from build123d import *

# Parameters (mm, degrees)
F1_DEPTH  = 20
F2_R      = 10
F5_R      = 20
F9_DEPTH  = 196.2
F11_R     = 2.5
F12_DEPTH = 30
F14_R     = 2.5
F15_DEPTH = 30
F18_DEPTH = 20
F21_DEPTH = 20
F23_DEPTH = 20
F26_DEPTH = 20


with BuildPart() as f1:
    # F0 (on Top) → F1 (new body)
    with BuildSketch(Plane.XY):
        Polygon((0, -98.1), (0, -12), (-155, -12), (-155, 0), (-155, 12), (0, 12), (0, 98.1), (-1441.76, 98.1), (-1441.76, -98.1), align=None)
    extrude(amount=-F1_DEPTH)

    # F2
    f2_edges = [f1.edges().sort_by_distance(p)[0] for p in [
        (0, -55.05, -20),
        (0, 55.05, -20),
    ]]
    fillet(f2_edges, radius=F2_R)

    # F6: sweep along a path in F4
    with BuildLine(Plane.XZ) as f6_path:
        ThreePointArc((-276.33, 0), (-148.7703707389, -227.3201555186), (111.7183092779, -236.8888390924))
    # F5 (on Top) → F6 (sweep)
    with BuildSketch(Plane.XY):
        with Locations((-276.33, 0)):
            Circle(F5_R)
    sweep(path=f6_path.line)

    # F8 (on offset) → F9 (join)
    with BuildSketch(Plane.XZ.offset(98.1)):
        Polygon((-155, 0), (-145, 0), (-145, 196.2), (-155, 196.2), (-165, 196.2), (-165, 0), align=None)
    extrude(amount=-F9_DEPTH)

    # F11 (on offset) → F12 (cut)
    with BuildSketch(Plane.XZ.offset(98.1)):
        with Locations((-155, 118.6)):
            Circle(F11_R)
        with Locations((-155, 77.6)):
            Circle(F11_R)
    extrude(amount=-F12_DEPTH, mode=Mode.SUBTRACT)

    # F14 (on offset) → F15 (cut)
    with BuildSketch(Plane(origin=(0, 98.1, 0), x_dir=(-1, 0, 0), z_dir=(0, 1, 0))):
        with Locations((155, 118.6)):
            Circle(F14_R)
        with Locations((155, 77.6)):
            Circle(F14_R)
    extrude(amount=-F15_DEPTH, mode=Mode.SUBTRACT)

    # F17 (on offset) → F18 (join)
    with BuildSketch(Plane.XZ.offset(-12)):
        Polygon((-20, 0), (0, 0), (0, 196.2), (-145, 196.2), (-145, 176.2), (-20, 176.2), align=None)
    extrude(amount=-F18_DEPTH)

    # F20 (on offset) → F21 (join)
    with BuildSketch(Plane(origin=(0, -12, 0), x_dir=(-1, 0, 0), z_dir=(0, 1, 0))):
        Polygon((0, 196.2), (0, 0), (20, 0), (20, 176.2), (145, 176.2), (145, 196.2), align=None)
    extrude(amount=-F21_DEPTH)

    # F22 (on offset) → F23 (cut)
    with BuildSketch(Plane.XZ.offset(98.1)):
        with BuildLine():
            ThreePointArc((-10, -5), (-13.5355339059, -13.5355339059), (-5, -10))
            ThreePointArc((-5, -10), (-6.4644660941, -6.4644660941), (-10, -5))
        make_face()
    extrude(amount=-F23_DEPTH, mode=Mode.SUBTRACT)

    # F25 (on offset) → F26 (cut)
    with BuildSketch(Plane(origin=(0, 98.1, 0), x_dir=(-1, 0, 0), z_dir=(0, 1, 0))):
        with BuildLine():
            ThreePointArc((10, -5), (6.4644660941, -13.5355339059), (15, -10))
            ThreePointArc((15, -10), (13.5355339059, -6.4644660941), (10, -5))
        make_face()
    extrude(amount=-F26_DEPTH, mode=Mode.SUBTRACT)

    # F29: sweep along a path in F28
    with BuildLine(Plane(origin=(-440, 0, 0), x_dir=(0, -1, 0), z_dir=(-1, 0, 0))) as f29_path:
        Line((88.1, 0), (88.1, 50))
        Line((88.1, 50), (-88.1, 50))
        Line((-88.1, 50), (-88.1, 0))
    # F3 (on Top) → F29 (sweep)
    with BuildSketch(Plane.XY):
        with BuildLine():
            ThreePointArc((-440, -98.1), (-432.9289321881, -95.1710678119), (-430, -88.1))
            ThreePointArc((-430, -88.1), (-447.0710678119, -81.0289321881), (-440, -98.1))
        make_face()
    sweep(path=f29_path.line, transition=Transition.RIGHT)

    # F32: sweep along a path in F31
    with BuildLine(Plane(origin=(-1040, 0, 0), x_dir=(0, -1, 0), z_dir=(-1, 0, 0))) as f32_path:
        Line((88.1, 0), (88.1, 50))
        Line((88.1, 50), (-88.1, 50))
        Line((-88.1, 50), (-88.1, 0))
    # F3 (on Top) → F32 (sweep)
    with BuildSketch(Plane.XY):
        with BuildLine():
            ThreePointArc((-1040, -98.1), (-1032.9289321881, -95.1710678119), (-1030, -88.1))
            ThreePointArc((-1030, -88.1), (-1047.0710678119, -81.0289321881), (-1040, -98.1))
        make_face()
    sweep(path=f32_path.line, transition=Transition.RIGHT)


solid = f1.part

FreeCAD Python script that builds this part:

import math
import FreeCAD as App
import Part
import Sketcher


def edges_at(feature, points):
    """Names of the edges that pass closest to the given points."""
    edges = feature.Shape.Edges
    near = lambda p: min(range(len(edges)), key=lambda i: edges[i].distToShape(Part.Vertex(*p))[0])
    return sorted({f"Edge{near(p) + 1}" for p in points})


def add_polygon(sketch, points):
    """Adds a closed chain of lines whose ends are joined by coincident constraints."""
    first, n = sketch.GeometryCount, len(points)
    for a, b in zip(points, points[1:] + points[:1]):
        sketch.addGeometry(Part.LineSegment(App.Vector(*a, 0), App.Vector(*b, 0)), False)
    for i in range(n):
        sketch.addConstraint(Sketcher.Constraint("Coincident", first + i, 2, first + (i + 1) % n, 1))

doc = App.newDocument("Part")
params = doc.addObject("Spreadsheet::Sheet", "Params")
for row, (alias, value) in enumerate([
    ("sketch1_width", "155 mm"),
    ("sketch1_height", "24 mm"),
    ("sketch1_height2", "86.1 mm"),
    ("sketch1_width2", "1441.76 mm"),
    ("pad1_length", "20 mm"),
    ("fillet_radius", "10 mm"),
    ("sketch2_diameter", "40 mm"),
    ("sketch3_radius", "266.33 mm"),
    ("sketch4_width", "20 mm"),
    ("sketch4_height", "196.2 mm"),
    ("pad2_length", "196.2 mm"),
    ("sketch5_diameter", "5 mm"),
    ("pocket1_length", "30 mm"),
    ("sketch6_diameter", "5 mm"),
    ("pocket2_length", "30 mm"),
    ("sketch7_width", "20 mm"),
    ("sketch7_width2", "145 mm"),
    ("sketch7_height", "196.2 mm"),
    ("pad3_length", "20 mm"),
    ("sketch8_width", "20 mm"),
    ("sketch8_width2", "125 mm"),
    ("sketch8_height", "196.2 mm"),
    ("pad4_length", "20 mm"),
    ("sketch9_radius", "5 mm"),
    ("pocket3_length", "20 mm"),
    ("sketch10_radius", "5 mm"),
    ("pocket4_length", "20 mm"),
    ("sketch11_radius", "10 mm"),
    ("sketch12_height", "50 mm"),
    ("sketch12_width", "176.2 mm"),
    ("sketch13_radius", "10 mm"),
    ("sketch14_height", "50 mm"),
    ("sketch14_width", "176.2 mm"),
], start=1):
    params.set(f"A{row}", alias)
    params.set(f"B{row}", "=" + value)
    params.setAlias(f"B{row}", alias)

body = doc.addObject("PartDesign::Body", "Body")

sketch1 = doc.addObject("Sketcher::SketchObject", "Sketch")
body.addObject(sketch1)
sketch1.AttachmentSupport = (doc.XY_Plane, [""])
sketch1.MapMode = "FlatFace"
add_polygon(sketch1, [(0, -98), (0, -12), (-155, -12), (-155, 12), (0, 12), (0, 98), (-1442, 98), (-1442, -98)])
sketch1.addConstraint([
    Sketcher.Constraint("Vertical", 0),
    Sketcher.Constraint("Horizontal", 1),
    Sketcher.Constraint("Vertical", 2),
    Sketcher.Constraint("Horizontal", 3),
    Sketcher.Constraint("Vertical", 4),
    Sketcher.Constraint("Horizontal", 5),
    Sketcher.Constraint("Vertical", 6),
    Sketcher.Constraint("Horizontal", 7),
    Sketcher.Constraint("Symmetric", 0, 2, 3, 2, -1, 1),
    Sketcher.Constraint("Symmetric", 4, 2, 7, 2, -1),
    Sketcher.Constraint("DistanceX", 1, 2, 1, 1, 155.0),
    Sketcher.Constraint("DistanceY", 2, 1, 2, 2, 24.0),
    Sketcher.Constraint("DistanceY", 0, 1, 0, 2, 86.1),
    Sketcher.Constraint("DistanceX", 5, 2, 5, 1, 1441.76),
])
sketch1.setExpression("Constraints[18]", "Params.sketch1_width")
sketch1.setExpression("Constraints[19]", "Params.sketch1_height")
sketch1.setExpression("Constraints[20]", "Params.sketch1_height2")
sketch1.setExpression("Constraints[21]", "Params.sketch1_width2")
pad1 = doc.addObject("PartDesign::Pad", "Pad")
body.addObject(pad1)
pad1.Profile = sketch1
pad1.setExpression("Length", "Params.pad1_length")
pad1.Reversed = True
doc.recompute()

fillet = doc.addObject("PartDesign::Fillet", "Fillet")
body.addObject(fillet)
fillet.Base = (pad1, edges_at(pad1, [(0, -55.05, -20), (0, 55.05, -20)]))
fillet.setExpression("Radius", "Params.fillet_radius")

sketch2 = doc.addObject("Sketcher::SketchObject", "Sketch001")
body.addObject(sketch2)
sketch2.AttachmentSupport = (doc.XY_Plane, [""])
sketch2.MapMode = "FlatFace"
sketch2.addGeometry(Part.Circle(App.Vector(-276, 0, 0), App.Vector(0, 0, 1), 20), False)
sketch2.addConstraint([
    Sketcher.Constraint("PointOnObject", 0, 3, -1),
    Sketcher.Constraint("Diameter", 0, 40.0),
    Sketcher.Constraint("DistanceX", 0, 3, -1, 1, 276.33),
])
sketch2.setExpression("Constraints[1]", "Params.sketch2_diameter")

sketch3 = doc.addObject("Sketcher::SketchObject", "Sketch002")
body.addObject(sketch3)
sketch3.AttachmentSupport = (doc.XZ_Plane, [""])
sketch3.MapMode = "FlatFace"
sketch3.addGeometry(Part.ArcOfCircle(Part.Circle(App.Vector(-10, 0, 0), App.Vector(0, 0, 1), 266), math.radians(180), math.radians(297)), False)
sketch3.addConstraint([
    Sketcher.Constraint("PointOnObject", 0, 3, -1),
    Sketcher.Constraint("PointOnObject", 0, 1, -1),
    Sketcher.Constraint("Radius", 0, 266.33),
    Sketcher.Constraint("DistanceX", 0, 3, -1, 1, 10.0),
    Sketcher.Constraint("DistanceX", -1, 1, 0, 2, 111.718309),
])
sketch3.setExpression("Constraints[2]", "Params.sketch3_radius")
doc.recompute()

additivepipe = doc.addObject("PartDesign::AdditivePipe", "AdditivePipe")
body.addObject(additivepipe)
additivepipe.Profile = sketch2
additivepipe.Spine = (sketch3, ["Edge1"])

sketch4 = doc.addObject("Sketcher::SketchObject", "Sketch003")
body.addObject(sketch4)
sketch4.AttachmentSupport = (doc.XZ_Plane, [""])
sketch4.MapMode = "FlatFace"
sketch4.AttachmentOffset = App.Placement(App.Vector(0, 0, 98.1), App.Rotation())
add_polygon(sketch4, [(-145, 0), (-145, 196), (-165, 196), (-165, 0)])
sketch4.addConstraint([
    Sketcher.Constraint("Vertical", 0),
    Sketcher.Constraint("Horizontal", 1),
    Sketcher.Constraint("Vertical", 2),
    Sketcher.Constraint("Horizontal", 3),
    Sketcher.Constraint("PointOnObject", 2, 2, -1),
    Sketcher.Constraint("DistanceX", 1, 2, 1, 1, 20.0),
    Sketcher.Constraint("DistanceY", 0, 1, 0, 2, 196.2),
    Sketcher.Constraint("DistanceX", 0, 2, -1, 1, 145.0),
])
sketch4.setExpression("Constraints[9]", "Params.sketch4_width")
sketch4.setExpression("Constraints[10]", "Params.sketch4_height")
pad2 = doc.addObject("PartDesign::Pad", "Pad001")
body.addObject(pad2)
pad2.Profile = sketch4
pad2.setExpression("Length", "Params.pad2_length")
pad2.Reversed = True

sketch5 = doc.addObject("Sketcher::SketchObject", "Sketch004")
body.addObject(sketch5)
sketch5.AttachmentSupport = (doc.XZ_Plane, [""])
sketch5.MapMode = "FlatFace"
sketch5.AttachmentOffset = App.Placement(App.Vector(0, 0, 98.1), App.Rotation())
sketch5.addGeometry([
    Part.Circle(App.Vector(-155, 118.6, 0), App.Vector(0, 0, 1), 2.5),
    Part.Circle(App.Vector(-155, 77.6, 0), App.Vector(0, 0, 1), 2.5),
], False)
sketch5.addConstraint([
    Sketcher.Constraint("Equal", 0, 1),
    Sketcher.Constraint("Vertical", 0, 3, 1, 3),
    Sketcher.Constraint("Diameter", 0, 5.0),
    Sketcher.Constraint("DistanceX", 0, 3, -1, 1, 155.0),
    Sketcher.Constraint("DistanceY", 1, 3, 0, 3, 41.0),
    Sketcher.Constraint("DistanceY", -1, 1, 0, 3, 118.6),
])
sketch5.setExpression("Constraints[2]", "Params.sketch5_diameter")
pocket1 = doc.addObject("PartDesign::Pocket", "Pocket")
body.addObject(pocket1)
pocket1.Profile = sketch5
pocket1.setExpression("Length", "Params.pocket1_length")

sketch6 = doc.addObject("Sketcher::SketchObject", "Sketch005")
body.addObject(sketch6)
sketch6.AttachmentSupport = (doc.XZ_Plane, [""])
sketch6.MapMode = "FlatFace"
sketch6.AttachmentOffset = App.Placement(App.Vector(0, 0, -98.1), App.Rotation())
sketch6.addGeometry([
    Part.Circle(App.Vector(-155, 118.6, 0), App.Vector(0, 0, 1), 2.5),
    Part.Circle(App.Vector(-155, 77.6, 0), App.Vector(0, 0, 1), 2.5),
], False)
sketch6.addConstraint([
    Sketcher.Constraint("Equal", 0, 1),
    Sketcher.Constraint("Vertical", 0, 3, 1, 3),
    Sketcher.Constraint("Diameter", 0, 5.0),
    Sketcher.Constraint("DistanceX", 0, 3, -1, 1, 155.0),
    Sketcher.Constraint("DistanceY", 1, 3, 0, 3, 41.0),
    Sketcher.Constraint("DistanceY", -1, 1, 0, 3, 118.6),
])
sketch6.setExpression("Constraints[2]", "Params.sketch6_diameter")
pocket2 = doc.addObject("PartDesign::Pocket", "Pocket001")
body.addObject(pocket2)
pocket2.Profile = sketch6
pocket2.setExpression("Length", "Params.pocket2_length")
pocket2.Reversed = True

sketch7 = doc.addObject("Sketcher::SketchObject", "Sketch006")
body.addObject(sketch7)
sketch7.AttachmentSupport = (doc.XZ_Plane, [""])
sketch7.MapMode = "FlatFace"
sketch7.AttachmentOffset = App.Placement(App.Vector(0, 0, -12), App.Rotation())
add_polygon(sketch7, [(-20, 0), (0, 0), (0, 196), (-145, 196), (-145, 176), (-20, 176)])
sketch7.addConstraint([
    Sketcher.Constraint("Horizontal", 0),
    Sketcher.Constraint("Vertical", 1),
    Sketcher.Constraint("Horizontal", 2),
    Sketcher.Constraint("Vertical", 3),
    Sketcher.Constraint("Horizontal", 4),
    Sketcher.Constraint("Vertical", 5),
    Sketcher.Constraint("Coincident", 0, 2, -1, 1),
    Sketcher.Constraint("Equal", 0, 3),
    Sketcher.Constraint("DistanceX", 0, 1, 0, 2, 20.0),
    Sketcher.Constraint("DistanceX", 2, 2, 2, 1, 145.0),
    Sketcher.Constraint("DistanceY", 1, 1, 1, 2, 196.2),
])
sketch7.setExpression("Constraints[14]", "Params.sketch7_width")
sketch7.setExpression("Constraints[15]", "Params.sketch7_width2")
sketch7.setExpression("Constraints[16]", "Params.sketch7_height")
pad3 = doc.addObject("PartDesign::Pad", "Pad002")
body.addObject(pad3)
pad3.Profile = sketch7
pad3.setExpression("Length", "Params.pad3_length")
pad3.Reversed = True

sketch8 = doc.addObject("Sketcher::SketchObject", "Sketch007")
body.addObject(sketch8)
sketch8.AttachmentSupport = (doc.XZ_Plane, [""])
sketch8.MapMode = "FlatFace"
sketch8.AttachmentOffset = App.Placement(App.Vector(0, 0, 12), App.Rotation())
add_polygon(sketch8, [(0, 196), (0, 0), (-20, 0), (-20, 176), (-145, 176), (-145, 196)])
sketch8.addConstraint([
    Sketcher.Constraint("Vertical", 0),
    Sketcher.Constraint("Horizontal", 1),
    Sketcher.Constraint("Vertical", 2),
    Sketcher.Constraint("Horizontal", 3),
    Sketcher.Constraint("Vertical", 4),
    Sketcher.Constraint("Horizontal", 5),
    Sketcher.Constraint("Coincident", 0, 2, -1, 1),
    Sketcher.Constraint("Equal", 1, 4),
    Sketcher.Constraint("DistanceX", 1, 2, 1, 1, 20.0),
    Sketcher.Constraint("DistanceX", 3, 2, 3, 1, 125.0),
    Sketcher.Constraint("DistanceY", 0, 2, 0, 1, 196.2),
])
sketch8.setExpression("Constraints[14]", "Params.sketch8_width")
sketch8.setExpression("Constraints[15]", "Params.sketch8_width2")
sketch8.setExpression("Constraints[16]", "Params.sketch8_height")
pad4 = doc.addObject("PartDesign::Pad", "Pad003")
body.addObject(pad4)
pad4.Profile = sketch8
pad4.setExpression("Length", "Params.pad4_length")

sketch9 = doc.addObject("Sketcher::SketchObject", "Sketch008")
body.addObject(sketch9)
sketch9.AttachmentSupport = (doc.XZ_Plane, [""])
sketch9.MapMode = "FlatFace"
sketch9.AttachmentOffset = App.Placement(App.Vector(0, 0, 98.1), App.Rotation())
sketch9.addGeometry([
    Part.ArcOfCircle(Part.Circle(App.Vector(-10, -10, 0), App.Vector(0, 0, 1), 5), math.radians(90), math.radians(360)),
    Part.ArcOfCircle(Part.Circle(App.Vector(-10, -10, 0), App.Vector(0, 0, 1), 5), math.radians(0), math.radians(90)),
], False)
sketch9.addConstraint([
    Sketcher.Constraint("Tangent", 0, 1, 1, 2),
    Sketcher.Constraint("Coincident", 1, 1, 0, 2),
    Sketcher.Constraint("Horizontal", 0, 3, 1, 1),
    Sketcher.Constraint("Vertical", 1, 3, 0, 1),
    Sketcher.Constraint("Radius", 0, 5.0),
    Sketcher.Constraint("DistanceX", 0, 3, -1, 1, 10.0),
    Sketcher.Constraint("DistanceY", 0, 3, -1, 1, 10.0),
])
sketch9.setExpression("Constraints[4]", "Params.sketch9_radius")
pocket3 = doc.addObject("PartDesign::Pocket", "Pocket002")
body.addObject(pocket3)
pocket3.Profile = sketch9
pocket3.setExpression("Length", "Params.pocket3_length")

sketch10 = doc.addObject("Sketcher::SketchObject", "Sketch009")
body.addObject(sketch10)
sketch10.AttachmentSupport = (doc.XZ_Plane, [""])
sketch10.MapMode = "FlatFace"
sketch10.AttachmentOffset = App.Placement(App.Vector(0, 0, -98.1), App.Rotation())
sketch10.addGeometry([
    Part.ArcOfCircle(Part.Circle(App.Vector(-10, -10, 0), App.Vector(0, 0, 1), 5), math.radians(180), math.radians(450)),
    Part.ArcOfCircle(Part.Circle(App.Vector(-10, -10, 0), App.Vector(0, 0, 1), 5), math.radians(90), math.radians(180)),
], False)
sketch10.addConstraint([
    Sketcher.Constraint("Tangent", 0, 1, 1, 2),
    Sketcher.Constraint("Coincident", 1, 1, 0, 2),
    Sketcher.Constraint("Horizontal", 1, 3, 0, 1),
    Sketcher.Constraint("Vertical", 0, 3, 1, 1),
    Sketcher.Constraint("Radius", 0, 5.0),
    Sketcher.Constraint("DistanceX", 0, 3, -1, 1, 10.0),
    Sketcher.Constraint("DistanceY", 0, 3, -1, 1, 10.0),
])
sketch10.setExpression("Constraints[4]", "Params.sketch10_radius")
pocket4 = doc.addObject("PartDesign::Pocket", "Pocket003")
body.addObject(pocket4)
pocket4.Profile = sketch10
pocket4.setExpression("Length", "Params.pocket4_length")
pocket4.Reversed = True

sketch11 = doc.addObject("Sketcher::SketchObject", "Sketch010")
body.addObject(sketch11)
sketch11.AttachmentSupport = (doc.XY_Plane, [""])
sketch11.MapMode = "FlatFace"
sketch11.addGeometry([
    Part.ArcOfCircle(Part.Circle(App.Vector(-440, -88, 0), App.Vector(0, 0, 1), 10), math.radians(-90), math.radians(0)),
    Part.ArcOfCircle(Part.Circle(App.Vector(-440, -88, 0), App.Vector(0, 0, 1), 10), math.radians(0), math.radians(270)),
], False)
sketch11.addConstraint([
    Sketcher.Constraint("Tangent", 0, 1, 1, 2),
    Sketcher.Constraint("Coincident", 1, 1, 0, 2),
    Sketcher.Constraint("Horizontal", 0, 3, 1, 1),
    Sketcher.Constraint("Vertical", 1, 3, 0, 1),
    Sketcher.Constraint("Radius", 0, 10.0),
    Sketcher.Constraint("DistanceX", 0, 3, -1, 1, 440.0),
    Sketcher.Constraint("DistanceY", 0, 3, -1, 1, 88.1),
])
sketch11.setExpression("Constraints[4]", "Params.sketch11_radius")

sketch12 = doc.addObject("Sketcher::SketchObject", "Sketch011")
body.addObject(sketch12)
sketch12.AttachmentSupport = (doc.YZ_Plane, [""])
sketch12.MapMode = "FlatFace"
sketch12.AttachmentOffset = App.Placement(App.Vector(0, 0, -440), App.Rotation())
sketch12.addGeometry([
    Part.LineSegment(App.Vector(-88, 0, 0), App.Vector(-88, 50, 0)),
    Part.LineSegment(App.Vector(-88, 50, 0), App.Vector(88, 50, 0)),
    Part.LineSegment(App.Vector(88, 50, 0), App.Vector(88, 0, 0)),
], False)
sketch12.addConstraint([
    Sketcher.Constraint("Coincident", 0, 2, 1, 1),
    Sketcher.Constraint("Coincident", 1, 2, 2, 1),
    Sketcher.Constraint("Vertical", 0),
    Sketcher.Constraint("Horizontal", 1),
    Sketcher.Constraint("Vertical", 2),
    Sketcher.Constraint("Symmetric", 0, 1, 2, 2, -1, 1),
    Sketcher.Constraint("PointOnObject", 0, 1, -1),
    Sketcher.Constraint("DistanceY", 0, 1, 0, 2, 50.0),
    Sketcher.Constraint("DistanceX", 1, 1, 1, 2, 176.2),
])
sketch12.setExpression("Constraints[7]", "Params.sketch12_height")
sketch12.setExpression("Constraints[8]", "Params.sketch12_width")
doc.recompute()

additivepipe2 = doc.addObject("PartDesign::AdditivePipe", "AdditivePipe001")
body.addObject(additivepipe2)
additivepipe2.Profile = sketch11
additivepipe2.Spine = (sketch12, ["Edge1", "Edge2", "Edge3"])
additivepipe2.Transition = "Right corner"

sketch13 = doc.addObject("Sketcher::SketchObject", "Sketch012")
body.addObject(sketch13)
sketch13.AttachmentSupport = (doc.XY_Plane, [""])
sketch13.MapMode = "FlatFace"
sketch13.addGeometry([
    Part.ArcOfCircle(Part.Circle(App.Vector(-1040, -88, 0), App.Vector(0, 0, 1), 10), math.radians(-90), math.radians(0)),
    Part.ArcOfCircle(Part.Circle(App.Vector(-1040, -88, 0), App.Vector(0, 0, 1), 10), math.radians(0), math.radians(270)),
], False)
sketch13.addConstraint([
    Sketcher.Constraint("Tangent", 0, 1, 1, 2),
    Sketcher.Constraint("Coincident", 1, 1, 0, 2),
    Sketcher.Constraint("Horizontal", 0, 3, 1, 1),
    Sketcher.Constraint("Vertical", 1, 3, 0, 1),
    Sketcher.Constraint("Radius", 0, 10.0),
    Sketcher.Constraint("DistanceX", 0, 3, -1, 1, 1040.0),
    Sketcher.Constraint("DistanceY", 0, 3, -1, 1, 88.1),
])
sketch13.setExpression("Constraints[4]", "Params.sketch13_radius")

sketch14 = doc.addObject("Sketcher::SketchObject", "Sketch013")
body.addObject(sketch14)
sketch14.AttachmentSupport = (doc.YZ_Plane, [""])
sketch14.MapMode = "FlatFace"
sketch14.AttachmentOffset = App.Placement(App.Vector(0, 0, -1040), App.Rotation())
sketch14.addGeometry([
    Part.LineSegment(App.Vector(-88, 0, 0), App.Vector(-88, 50, 0)),
    Part.LineSegment(App.Vector(-88, 50, 0), App.Vector(88, 50, 0)),
    Part.LineSegment(App.Vector(88, 50, 0), App.Vector(88, 0, 0)),
], False)
sketch14.addConstraint([
    Sketcher.Constraint("Coincident", 0, 2, 1, 1),
    Sketcher.Constraint("Coincident", 1, 2, 2, 1),
    Sketcher.Constraint("Vertical", 0),
    Sketcher.Constraint("Horizontal", 1),
    Sketcher.Constraint("Vertical", 2),
    Sketcher.Constraint("Symmetric", 0, 1, 2, 2, -1, 1),
    Sketcher.Constraint("PointOnObject", 0, 1, -1),
    Sketcher.Constraint("DistanceY", 0, 1, 0, 2, 50.0),
    Sketcher.Constraint("DistanceX", 1, 1, 1, 2, 176.2),
])
sketch14.setExpression("Constraints[7]", "Params.sketch14_height")
sketch14.setExpression("Constraints[8]", "Params.sketch14_width")
doc.recompute()

additivepipe3 = doc.addObject("PartDesign::AdditivePipe", "AdditivePipe002")
body.addObject(additivepipe3)
additivepipe3.Profile = sketch13
additivepipe3.Spine = (sketch14, ["Edge1", "Edge2", "Edge3"])
additivepipe3.Transition = "Right corner"

doc.recompute()
